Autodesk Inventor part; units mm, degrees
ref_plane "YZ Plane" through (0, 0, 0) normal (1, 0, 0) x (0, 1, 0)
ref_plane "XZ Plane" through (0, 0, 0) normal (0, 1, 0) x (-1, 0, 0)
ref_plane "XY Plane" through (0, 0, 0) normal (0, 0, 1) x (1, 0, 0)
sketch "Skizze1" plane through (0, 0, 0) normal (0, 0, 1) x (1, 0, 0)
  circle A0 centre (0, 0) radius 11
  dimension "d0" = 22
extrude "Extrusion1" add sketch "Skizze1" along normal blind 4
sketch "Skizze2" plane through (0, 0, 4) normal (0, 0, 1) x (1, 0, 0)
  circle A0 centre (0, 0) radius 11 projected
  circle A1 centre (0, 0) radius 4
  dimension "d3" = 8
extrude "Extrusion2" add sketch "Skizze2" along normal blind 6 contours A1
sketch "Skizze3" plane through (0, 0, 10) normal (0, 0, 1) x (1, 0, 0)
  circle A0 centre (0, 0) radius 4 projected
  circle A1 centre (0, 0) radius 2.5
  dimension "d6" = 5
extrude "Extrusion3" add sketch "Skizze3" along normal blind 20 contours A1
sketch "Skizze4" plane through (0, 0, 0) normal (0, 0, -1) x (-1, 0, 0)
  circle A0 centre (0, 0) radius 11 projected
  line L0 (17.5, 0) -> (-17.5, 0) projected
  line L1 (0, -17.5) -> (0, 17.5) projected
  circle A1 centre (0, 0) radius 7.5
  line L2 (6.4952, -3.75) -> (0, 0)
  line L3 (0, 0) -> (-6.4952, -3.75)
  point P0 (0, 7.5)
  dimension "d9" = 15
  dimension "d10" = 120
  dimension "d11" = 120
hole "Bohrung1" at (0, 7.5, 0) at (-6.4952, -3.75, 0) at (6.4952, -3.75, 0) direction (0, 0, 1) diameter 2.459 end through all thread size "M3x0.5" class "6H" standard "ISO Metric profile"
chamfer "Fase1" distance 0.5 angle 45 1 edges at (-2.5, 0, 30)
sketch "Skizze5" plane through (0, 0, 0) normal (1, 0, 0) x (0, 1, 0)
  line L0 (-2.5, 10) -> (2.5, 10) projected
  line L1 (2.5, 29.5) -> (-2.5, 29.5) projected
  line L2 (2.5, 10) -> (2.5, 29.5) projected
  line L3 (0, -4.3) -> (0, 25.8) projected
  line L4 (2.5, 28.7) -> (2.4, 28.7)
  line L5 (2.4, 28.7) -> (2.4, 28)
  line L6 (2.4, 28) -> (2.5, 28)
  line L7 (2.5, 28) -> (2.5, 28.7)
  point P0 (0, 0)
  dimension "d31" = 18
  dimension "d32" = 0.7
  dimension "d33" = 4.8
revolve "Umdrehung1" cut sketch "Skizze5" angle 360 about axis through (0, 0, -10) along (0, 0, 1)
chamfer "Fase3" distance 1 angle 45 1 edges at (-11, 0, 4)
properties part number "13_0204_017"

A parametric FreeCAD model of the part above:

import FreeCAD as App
import Part
import Sketcher


def edges_at(feature, points):
    """Names of the edges that pass closest to the given points."""
    edges = feature.Shape.Edges
    near = lambda p: min(range(len(edges)), key=lambda i: edges[i].distToShape(Part.Vertex(*p))[0])
    return sorted({f"Edge{near(p) + 1}" for p in points})


def add_polygon(sketch, points):
    """Adds a closed chain of lines whose ends are joined by coincident constraints."""
    first, n = sketch.GeometryCount, len(points)
    for a, b in zip(points, points[1:] + points[:1]):
        sketch.addGeometry(Part.LineSegment(App.Vector(*a, 0), App.Vector(*b, 0)), False)
    for i in range(n):
        sketch.addConstraint(Sketcher.Constraint("Coincident", first + i, 2, first + (i + 1) % n, 1))

doc = App.newDocument("Part")
body = doc.addObject("PartDesign::Body", "Body")

# Sketch on XY plane
sketch1 = body.newObject("Sketcher::SketchObject", "Sketch")
sketch1.AttachmentSupport = (doc.getObject("XY_Plane"), [""])
sketch1.MapMode = "FlatFace"
sketch1.addGeometry(Part.Circle(App.Vector(0, 0, 0), App.Vector(0, 0, 1), 11), False)
sketch1.addConstraint(Sketcher.Constraint("Coincident", 0, 3, -1, 1))
sketch1.addConstraint(Sketcher.Constraint("Diameter", 0, 22.0))
pad1 = body.newObject("PartDesign::Pad", "Pad")
pad1.Profile = sketch1
pad1.Length = 4

# Sketch on XY plane
sketch2 = body.newObject("Sketcher::SketchObject", "Sketch001")
sketch2.AttachmentSupport = (doc.getObject("XY_Plane"), [""])
sketch2.MapMode = "FlatFace"
sketch2.AttachmentOffset = App.Placement(App.Vector(0, 0, 4), App.Rotation())
sketch2.addGeometry(Part.Circle(App.Vector(0, 0, 0), App.Vector(0, 0, 1), 4), False)
sketch2.addConstraint(Sketcher.Constraint("Coincident", 0, 3, -1, 1))
sketch2.addConstraint(Sketcher.Constraint("Diameter", 0, 8.0))
pad2 = body.newObject("PartDesign::Pad", "Pad001")
pad2.Profile = sketch2
pad2.Length = 6

# Sketch on XY plane
sketch3 = body.newObject("Sketcher::SketchObject", "Sketch002")
sketch3.AttachmentSupport = (doc.getObject("XY_Plane"), [""])
sketch3.MapMode = "FlatFace"
sketch3.AttachmentOffset = App.Placement(App.Vector(0, 0, 10), App.Rotation())
sketch3.addGeometry(Part.Circle(App.Vector(0, 0, 0), App.Vector(0, 0, 1), 2.5), False)
sketch3.addConstraint(Sketcher.Constraint("Coincident", 0, 3, -1, 1))
sketch3.addConstraint(Sketcher.Constraint("Diameter", 0, 5.0))
pad3 = body.newObject("PartDesign::Pad", "Pad002")
pad3.Profile = sketch3
pad3.Length = 20

# Sketch on XY plane
sketch4 = body.newObject("Sketcher::SketchObject", "Sketch003")
sketch4.AttachmentSupport = (doc.getObject("XY_Plane"), [""])
sketch4.MapMode = "FlatFace"
sketch4.addGeometry(Part.Circle(App.Vector(0, 7.5, 0), App.Vector(0, 0, 1), 1.2), False)
sketch4.addGeometry(Part.Circle(App.Vector(-6.5, -3.8, 0), App.Vector(0, 0, 1), 1.2), False)
sketch4.addGeometry(Part.Circle(App.Vector(6.5, -3.8, 0), App.Vector(0, 0, 1), 1.2), False)
sketch4.addConstraint(Sketcher.Constraint("Equal", 0, 1))
sketch4.addConstraint(Sketcher.Constraint("Equal", 1, 2))
sketch4.addConstraint(Sketcher.Constraint("Symmetric", 1, 3, 2, 3, -2))
sketch4.addConstraint(Sketcher.Constraint("PointOnObject", 0, 3, -2))
sketch4.addConstraint(Sketcher.Constraint("Diameter", 0, 2.459))
sketch4.addConstraint(Sketcher.Constraint("DistanceY", -1, 1, 0, 3, 7.5))
sketch4.addConstraint(Sketcher.Constraint("DistanceY", 1, 3, -1, 1, 3.75))
sketch4.addConstraint(Sketcher.Constraint("DistanceX", 1, 3, -1, 1, 6.4952))
doc.recompute()
hole = body.newObject("PartDesign::Hole", "Hole")
hole.Profile = sketch4
hole.ThreadType = "None"
hole.Diameter = 2.459
hole.DepthType = "ThroughAll"
hole.Reversed = True
doc.recompute()

chamfer = body.newObject("PartDesign::Chamfer", "Chamfer")
chamfer.Base = (hole, edges_at(hole, [(-2.5, 0, 30)]))
chamfer.Size = 0.5

# Sketch on YZ plane
sketch5 = body.newObject("Sketcher::SketchObject", "Sketch004")
sketch5.AttachmentSupport = (doc.getObject("YZ_Plane"), [""])
sketch5.MapMode = "FlatFace"
add_polygon(sketch5, [(2.4, 28), (2.5, 28), (2.5, 28.7), (2.4, 28.7)])  # lines 0-3
sketch5.addConstraint(Sketcher.Constraint("Horizontal", 0))
sketch5.addConstraint(Sketcher.Constraint("Vertical", 1))
sketch5.addConstraint(Sketcher.Constraint("Horizontal", 2))
sketch5.addConstraint(Sketcher.Constraint("Vertical", 3))
sketch5.addConstraint(Sketcher.Constraint("DistanceY", 1, 1, 1, 2, 0.7))
sketch5.addConstraint(Sketcher.Constraint("DistanceX", 0, 1, 0, 2, 0.1))
sketch5.addConstraint(Sketcher.Constraint("DistanceY", -1, 1, 0, 2, 28.0))
sketch5.addConstraint(Sketcher.Constraint("DistanceX", -1, 1, 0, 2, 2.5))
groove = body.newObject("PartDesign::Groove", "Groove")
groove.Profile = sketch5
groove.ReferenceAxis = (sketch5, ["V_Axis"])
groove.Angle = 360
doc.recompute()

chamfer2 = body.newObject("PartDesign::Chamfer", "Chamfer001")
chamfer2.Base = (groove, edges_at(groove, [(-11, 0, 4)]))
chamfer2.Size = 1

doc.recompute()
